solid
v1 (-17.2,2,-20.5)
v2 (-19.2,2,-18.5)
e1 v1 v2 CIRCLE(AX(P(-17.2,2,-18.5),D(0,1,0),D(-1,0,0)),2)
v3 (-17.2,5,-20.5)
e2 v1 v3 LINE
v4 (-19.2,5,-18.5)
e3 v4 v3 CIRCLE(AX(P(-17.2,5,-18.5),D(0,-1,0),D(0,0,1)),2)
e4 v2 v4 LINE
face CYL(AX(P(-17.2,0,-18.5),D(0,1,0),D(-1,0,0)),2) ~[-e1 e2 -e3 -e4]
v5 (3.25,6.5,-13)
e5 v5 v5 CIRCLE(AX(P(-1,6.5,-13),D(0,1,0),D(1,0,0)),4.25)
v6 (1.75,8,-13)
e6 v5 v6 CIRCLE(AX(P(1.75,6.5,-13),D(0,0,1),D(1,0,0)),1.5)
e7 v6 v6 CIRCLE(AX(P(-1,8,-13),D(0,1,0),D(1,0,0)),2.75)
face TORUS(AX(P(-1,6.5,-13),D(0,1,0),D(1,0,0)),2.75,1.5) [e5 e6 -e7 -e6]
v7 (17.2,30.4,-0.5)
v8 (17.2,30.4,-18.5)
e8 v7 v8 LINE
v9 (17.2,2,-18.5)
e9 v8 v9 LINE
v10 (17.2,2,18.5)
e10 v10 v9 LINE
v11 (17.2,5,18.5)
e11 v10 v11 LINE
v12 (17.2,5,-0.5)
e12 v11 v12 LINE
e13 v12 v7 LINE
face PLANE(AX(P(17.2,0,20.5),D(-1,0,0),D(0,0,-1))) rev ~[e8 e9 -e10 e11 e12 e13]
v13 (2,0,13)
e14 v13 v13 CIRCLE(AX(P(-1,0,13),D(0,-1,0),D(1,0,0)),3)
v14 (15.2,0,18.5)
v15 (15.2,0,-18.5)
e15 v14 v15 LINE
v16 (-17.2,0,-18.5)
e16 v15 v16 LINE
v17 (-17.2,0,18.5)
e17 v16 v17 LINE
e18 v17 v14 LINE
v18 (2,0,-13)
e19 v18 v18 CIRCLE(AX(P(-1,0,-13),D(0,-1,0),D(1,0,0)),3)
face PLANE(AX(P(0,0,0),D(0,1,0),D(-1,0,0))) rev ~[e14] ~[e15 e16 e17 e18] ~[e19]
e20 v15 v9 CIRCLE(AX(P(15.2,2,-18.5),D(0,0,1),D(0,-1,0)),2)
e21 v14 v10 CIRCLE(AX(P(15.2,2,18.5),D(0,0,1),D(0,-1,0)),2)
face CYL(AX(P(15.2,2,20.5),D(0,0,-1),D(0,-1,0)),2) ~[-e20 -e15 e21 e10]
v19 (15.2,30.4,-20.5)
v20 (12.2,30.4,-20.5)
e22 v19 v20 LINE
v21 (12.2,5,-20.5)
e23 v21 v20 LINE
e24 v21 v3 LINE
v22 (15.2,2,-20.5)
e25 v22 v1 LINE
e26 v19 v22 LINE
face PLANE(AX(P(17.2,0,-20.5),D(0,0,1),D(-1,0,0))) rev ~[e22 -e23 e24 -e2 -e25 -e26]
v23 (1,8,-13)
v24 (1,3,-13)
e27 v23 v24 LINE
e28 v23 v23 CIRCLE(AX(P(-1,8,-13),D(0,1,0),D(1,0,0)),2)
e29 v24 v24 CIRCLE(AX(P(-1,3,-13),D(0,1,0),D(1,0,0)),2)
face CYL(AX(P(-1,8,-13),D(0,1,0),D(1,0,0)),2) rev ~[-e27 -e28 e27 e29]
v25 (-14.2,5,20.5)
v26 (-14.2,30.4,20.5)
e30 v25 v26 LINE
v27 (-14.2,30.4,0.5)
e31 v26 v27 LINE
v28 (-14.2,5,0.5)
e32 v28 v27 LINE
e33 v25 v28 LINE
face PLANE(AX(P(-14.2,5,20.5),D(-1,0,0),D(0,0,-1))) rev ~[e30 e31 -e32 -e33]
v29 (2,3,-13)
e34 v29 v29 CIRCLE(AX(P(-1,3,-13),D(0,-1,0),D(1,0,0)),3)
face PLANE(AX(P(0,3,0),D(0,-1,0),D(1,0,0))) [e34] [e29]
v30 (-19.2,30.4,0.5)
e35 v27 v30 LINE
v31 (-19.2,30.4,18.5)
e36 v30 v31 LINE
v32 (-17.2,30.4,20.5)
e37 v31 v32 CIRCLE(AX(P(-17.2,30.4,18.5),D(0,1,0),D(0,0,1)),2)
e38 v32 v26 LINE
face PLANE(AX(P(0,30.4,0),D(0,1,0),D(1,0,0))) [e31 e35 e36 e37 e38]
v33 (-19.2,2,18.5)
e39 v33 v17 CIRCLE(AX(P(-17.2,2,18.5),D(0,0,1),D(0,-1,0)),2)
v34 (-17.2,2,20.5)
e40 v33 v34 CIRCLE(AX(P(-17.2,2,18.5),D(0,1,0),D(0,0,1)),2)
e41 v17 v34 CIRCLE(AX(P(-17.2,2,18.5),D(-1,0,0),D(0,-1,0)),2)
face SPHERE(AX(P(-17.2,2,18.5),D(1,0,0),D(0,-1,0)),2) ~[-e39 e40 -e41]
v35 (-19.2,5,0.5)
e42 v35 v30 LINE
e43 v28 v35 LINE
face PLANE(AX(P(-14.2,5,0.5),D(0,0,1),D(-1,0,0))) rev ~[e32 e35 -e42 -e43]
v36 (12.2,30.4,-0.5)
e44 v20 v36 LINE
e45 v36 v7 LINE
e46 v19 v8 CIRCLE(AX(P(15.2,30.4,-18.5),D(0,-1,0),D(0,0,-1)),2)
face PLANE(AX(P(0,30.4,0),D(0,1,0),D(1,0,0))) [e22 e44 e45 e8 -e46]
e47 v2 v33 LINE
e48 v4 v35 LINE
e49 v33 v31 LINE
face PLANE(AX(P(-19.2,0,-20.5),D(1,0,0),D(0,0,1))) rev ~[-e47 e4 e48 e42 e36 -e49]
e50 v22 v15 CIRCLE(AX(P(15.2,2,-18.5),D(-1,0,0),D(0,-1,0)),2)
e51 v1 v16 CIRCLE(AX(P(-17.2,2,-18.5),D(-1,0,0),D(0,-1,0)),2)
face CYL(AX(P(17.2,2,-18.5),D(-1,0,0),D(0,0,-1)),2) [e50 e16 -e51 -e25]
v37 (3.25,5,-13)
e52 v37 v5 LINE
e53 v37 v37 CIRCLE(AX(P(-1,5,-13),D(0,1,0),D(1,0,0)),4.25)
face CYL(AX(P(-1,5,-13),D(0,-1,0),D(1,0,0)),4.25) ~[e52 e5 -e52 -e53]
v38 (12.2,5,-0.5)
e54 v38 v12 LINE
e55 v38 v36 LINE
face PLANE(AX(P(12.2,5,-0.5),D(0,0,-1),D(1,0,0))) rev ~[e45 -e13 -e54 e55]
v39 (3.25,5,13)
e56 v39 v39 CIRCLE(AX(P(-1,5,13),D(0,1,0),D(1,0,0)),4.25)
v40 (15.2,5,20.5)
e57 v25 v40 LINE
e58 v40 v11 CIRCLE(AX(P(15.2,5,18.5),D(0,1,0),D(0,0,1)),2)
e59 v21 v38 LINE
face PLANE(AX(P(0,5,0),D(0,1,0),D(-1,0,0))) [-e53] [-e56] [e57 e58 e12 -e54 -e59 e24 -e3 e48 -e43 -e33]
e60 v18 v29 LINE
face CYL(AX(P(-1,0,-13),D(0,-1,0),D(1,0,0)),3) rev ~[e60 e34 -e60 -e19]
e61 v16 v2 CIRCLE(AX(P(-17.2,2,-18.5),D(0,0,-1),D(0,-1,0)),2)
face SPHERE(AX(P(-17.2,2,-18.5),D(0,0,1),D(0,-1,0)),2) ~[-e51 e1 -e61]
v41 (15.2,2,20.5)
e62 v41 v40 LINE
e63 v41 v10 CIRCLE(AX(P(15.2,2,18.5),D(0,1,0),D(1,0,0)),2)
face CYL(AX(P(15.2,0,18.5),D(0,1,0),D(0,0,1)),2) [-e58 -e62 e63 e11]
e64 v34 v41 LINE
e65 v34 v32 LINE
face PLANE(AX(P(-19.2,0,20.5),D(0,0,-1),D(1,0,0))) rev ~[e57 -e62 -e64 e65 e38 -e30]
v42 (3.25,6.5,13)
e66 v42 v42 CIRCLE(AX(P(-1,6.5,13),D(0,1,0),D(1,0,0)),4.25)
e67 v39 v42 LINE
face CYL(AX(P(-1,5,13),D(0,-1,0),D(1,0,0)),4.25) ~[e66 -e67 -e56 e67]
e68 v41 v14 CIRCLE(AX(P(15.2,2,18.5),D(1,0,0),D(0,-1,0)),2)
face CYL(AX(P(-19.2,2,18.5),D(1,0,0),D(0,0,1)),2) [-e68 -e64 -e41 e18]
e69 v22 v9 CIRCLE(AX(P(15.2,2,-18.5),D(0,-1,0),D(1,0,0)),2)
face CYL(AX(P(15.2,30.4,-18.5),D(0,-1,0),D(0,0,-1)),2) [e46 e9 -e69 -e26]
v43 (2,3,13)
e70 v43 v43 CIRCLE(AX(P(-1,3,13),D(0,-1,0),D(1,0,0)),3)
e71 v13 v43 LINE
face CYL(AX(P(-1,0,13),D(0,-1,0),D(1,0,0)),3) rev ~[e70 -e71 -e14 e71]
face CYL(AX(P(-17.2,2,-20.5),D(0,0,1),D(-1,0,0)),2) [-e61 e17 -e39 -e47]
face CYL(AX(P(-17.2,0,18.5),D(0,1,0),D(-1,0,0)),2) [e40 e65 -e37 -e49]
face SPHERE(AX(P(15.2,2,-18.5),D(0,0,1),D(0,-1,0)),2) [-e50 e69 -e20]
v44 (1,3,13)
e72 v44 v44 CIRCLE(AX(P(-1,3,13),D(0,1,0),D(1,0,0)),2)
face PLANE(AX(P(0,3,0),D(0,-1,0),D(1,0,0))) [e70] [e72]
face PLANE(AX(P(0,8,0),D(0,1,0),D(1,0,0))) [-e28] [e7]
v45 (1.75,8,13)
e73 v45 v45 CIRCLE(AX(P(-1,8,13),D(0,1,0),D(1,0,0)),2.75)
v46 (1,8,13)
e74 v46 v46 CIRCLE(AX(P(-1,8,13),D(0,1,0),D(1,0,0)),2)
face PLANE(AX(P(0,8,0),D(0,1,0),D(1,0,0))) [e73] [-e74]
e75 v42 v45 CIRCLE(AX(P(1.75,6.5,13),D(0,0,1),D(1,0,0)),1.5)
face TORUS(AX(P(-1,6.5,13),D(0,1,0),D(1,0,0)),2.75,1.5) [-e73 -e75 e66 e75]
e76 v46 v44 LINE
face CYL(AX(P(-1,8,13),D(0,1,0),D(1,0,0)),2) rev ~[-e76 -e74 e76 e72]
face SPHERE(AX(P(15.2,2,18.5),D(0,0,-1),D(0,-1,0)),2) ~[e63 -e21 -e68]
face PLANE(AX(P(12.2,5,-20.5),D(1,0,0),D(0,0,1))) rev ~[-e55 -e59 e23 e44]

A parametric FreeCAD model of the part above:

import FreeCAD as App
import Part
import Sketcher
from FreeCAD import Vector
Q = App.Units.Quantity


def edges_at(feature, points):
    """Names of the edges that pass closest to the given points."""
    edges = feature.Shape.Edges
    near = lambda p: min(range(len(edges)), key=lambda i: edges[i].distToShape(Part.Vertex(*p))[0])
    return sorted({f"Edge{near(p) + 1}" for p in points})


def add_polygon(sketch, points):
    """Adds a closed chain of lines whose ends are joined by coincident constraints."""
    first, n = sketch.GeometryCount, len(points)
    for a, b in zip(points, points[1:] + points[:1]):
        sketch.addGeometry(Part.LineSegment(App.Vector(*a, 0), App.Vector(*b, 0)), False)
    for i in range(n):
        sketch.addConstraint(Sketcher.Constraint("Coincident", first + i, 2, first + (i + 1) % n, 1))

doc = App.newDocument("Part")
body = doc.addObject("PartDesign::Body", "Body")

# Sketch on XZ plane
sketch1 = doc.addObject("Sketcher::SketchObject", "Sketch")
body.addObject(sketch1)
sketch1.AttachmentSupport = (doc.XZ_Plane, [""])
sketch1.MapMode = "FlatFace"
add_polygon(sketch1, [(-19, -20), (-19, 20), (17, 20), (17, -20)])  # lines 0-3
sketch1.addConstraint(Sketcher.Constraint("Vertical", 0))
sketch1.addConstraint(Sketcher.Constraint("Horizontal", 1))
sketch1.addConstraint(Sketcher.Constraint("Vertical", 2))
sketch1.addConstraint(Sketcher.Constraint("Horizontal", 3))
sketch1.addConstraint(Sketcher.Constraint("DistanceY", 0, 1, 0, 2, Q("41 mm")))
sketch1.addConstraint(Sketcher.Constraint("DistanceX", 1, 1, 1, 2, Q("36.4 mm")))
sketch1.addConstraint(Sketcher.Constraint("DistanceX", 0, 2, -1, 1, Q("19.2 mm")))
sketch1.addConstraint(Sketcher.Constraint("DistanceY", -1, 1, 0, 2, Q("20.5 mm")))
pad1 = doc.addObject("PartDesign::Pad", "Pad")
body.addObject(pad1)
pad1.Profile = sketch1
pad1.Length = 5
pad1.Reversed = True

# Sketch on XZ plane
sketch2 = doc.addObject("Sketcher::SketchObject", "Sketch001")
body.addObject(sketch2)
sketch2.AttachmentSupport = (doc.XZ_Plane, [""])
sketch2.MapMode = "FlatFace"
sketch2.AttachmentOffset = App.Placement(Vector(0, 0, -5), App.Rotation())
add_polygon(sketch2, [(-19, 0), (-19, 20), (-14, 20), (-14, 0)])  # lines 0-3
add_polygon(sketch2, [(17, 0), (17, -20), (12, -20), (12, 0)])  # lines 4-7
sketch2.addConstraint(Sketcher.Constraint("Vertical", 0))
sketch2.addConstraint(Sketcher.Constraint("Horizontal", 1))
sketch2.addConstraint(Sketcher.Constraint("Vertical", 2))
sketch2.addConstraint(Sketcher.Constraint("Horizontal", 3))
sketch2.addConstraint(Sketcher.Constraint("Vertical", 4))
sketch2.addConstraint(Sketcher.Constraint("Horizontal", 5))
sketch2.addConstraint(Sketcher.Constraint("Vertical", 6))
sketch2.addConstraint(Sketcher.Constraint("Horizontal", 7))
sketch2.addConstraint(Sketcher.Constraint("Equal", 3, 5))
sketch2.addConstraint(Sketcher.Constraint("Equal", 2, 4))
sketch2.addConstraint(Sketcher.Constraint("DistanceX", 1, 1, 1, 2, Q("5 mm")))
sketch2.addConstraint(Sketcher.Constraint("DistanceY", 0, 1, 0, 2, Q("20 mm")))
sketch2.addConstraint(Sketcher.Constraint("DistanceY", 4, 2, 2, 2, Q("21 mm")))
sketch2.addConstraint(Sketcher.Constraint("DistanceX", 0, 2, -1, 1, Q("19.2 mm")))
sketch2.addConstraint(Sketcher.Constraint("DistanceY", -1, 1, 0, 2, Q("20.5 mm")))
sketch2.addConstraint(Sketcher.Constraint("DistanceX", -1, 1, 4, 2, Q("17.2 mm")))
pad2 = doc.addObject("PartDesign::Pad", "Pad001")
body.addObject(pad2)
pad2.Profile = sketch2
pad2.Length = 25.4
pad2.Reversed = True

# Sketch on XZ plane
sketch3 = doc.addObject("Sketcher::SketchObject", "Sketch002")
body.addObject(sketch3)
sketch3.AttachmentSupport = (doc.XZ_Plane, [""])
sketch3.MapMode = "FlatFace"
sketch3.AttachmentOffset = App.Placement(Vector(0, 0, -5), App.Rotation())
sketch3.addGeometry(Part.Circle(Vector(-1, 13, 0), Vector(0, 0, 1), 4.2), False)
sketch3.addGeometry(Part.Circle(Vector(-1, -13, 0), Vector(0, 0, 1), 4.2), False)
sketch3.addConstraint(Sketcher.Constraint("Equal", 0, 1))
sketch3.addConstraint(Sketcher.Constraint("Symmetric", 0, 3, 1, 3, -1))
sketch3.addConstraint(Sketcher.Constraint("Diameter", 0, Q("8.5 mm")))
sketch3.addConstraint(Sketcher.Constraint("DistanceX", 0, 3, -1, 1, Q("1 mm")))
sketch3.addConstraint(Sketcher.Constraint("DistanceY", -1, 1, 0, 3, Q("13 mm")))
pad3 = doc.addObject("PartDesign::Pad", "Pad002")
body.addObject(pad3)
pad3.Profile = sketch3
pad3.Length = 3
pad3.Reversed = True

# Sketch on XZ plane
sketch4 = doc.addObject("Sketcher::SketchObject", "Sketch003")
body.addObject(sketch4)
sketch4.AttachmentSupport = (doc.XZ_Plane, [""])
sketch4.MapMode = "FlatFace"
sketch4.AttachmentOffset = App.Placement(Vector(0, 0, -8), App.Rotation())
sketch4.addGeometry(Part.Circle(Vector(-1, 13, 0), Vector(0, 0, 1), 2), False)
sketch4.addGeometry(Part.Circle(Vector(-1, -13, 0), Vector(0, 0, 1), 2), False)
sketch4.addConstraint(Sketcher.Constraint("Equal", 0, 1))
sketch4.addConstraint(Sketcher.Constraint("Symmetric", 0, 3, 1, 3, -1))
sketch4.addConstraint(Sketcher.Constraint("Diameter", 0, Q("4 mm")))
sketch4.addConstraint(Sketcher.Constraint("DistanceX", 0, 3, -1, 1, Q("1 mm")))
sketch4.addConstraint(Sketcher.Constraint("DistanceY", -1, 1, 0, 3, Q("13 mm")))
pocket1 = doc.addObject("PartDesign::Pocket", "Pocket")
body.addObject(pocket1)
pocket1.Profile = sketch4
pocket1.Length = 10
pocket1.Reversed = True
doc.recompute()

fillet = doc.addObject("PartDesign::Fillet", "Fillet")
body.addObject(fillet)
fillet.Base = (pocket1, edges_at(pocket1, [
    (17.2, 0, 0),
    (-1, 0, 20.5),
    (-19.2, 0, 0),
    (-1, 0, -20.5),
    (-19.2, 15.2, 20.5),
    (17.2, 15.2, -20.5),
    (-19.2, 2.5, -20.5),
    (17.2, 2.5, 20.5),
]))
fillet.Radius = 2
doc.recompute()

fillet2 = doc.addObject("PartDesign::Fillet", "Fillet001")
body.addObject(fillet2)
fillet2.Base = (fillet, edges_at(fillet, [(-5.25, 8, -13), (-5.25, 8, 13)]))
fillet2.Radius = 1.5

# Sketch on XZ plane
sketch5 = doc.addObject("Sketcher::SketchObject", "Sketch004")
body.addObject(sketch5)
sketch5.AttachmentSupport = (doc.XZ_Plane, [""])
sketch5.MapMode = "FlatFace"
sketch5.addGeometry(Part.Circle(Vector(-1, 13, 0), Vector(0, 0, 1), 3), False)
sketch5.addGeometry(Part.Circle(Vector(-1, -13, 0), Vector(0, 0, 1), 3), False)
sketch5.addConstraint(Sketcher.Constraint("Equal", 0, 1))
sketch5.addConstraint(Sketcher.Constraint("Symmetric", 0, 3, 1, 3, -1))
sketch5.addConstraint(Sketcher.Constraint("Diameter", 0, Q("6 mm")))
sketch5.addConstraint(Sketcher.Constraint("DistanceX", 0, 3, -1, 1, Q("1 mm")))
sketch5.addConstraint(Sketcher.Constraint("DistanceY", -1, 1, 0, 3, Q("13 mm")))
pocket2 = doc.addObject("PartDesign::Pocket", "Pocket001")
body.addObject(pocket2)
pocket2.Profile = sketch5
pocket2.Length = 3

doc.recompute()
